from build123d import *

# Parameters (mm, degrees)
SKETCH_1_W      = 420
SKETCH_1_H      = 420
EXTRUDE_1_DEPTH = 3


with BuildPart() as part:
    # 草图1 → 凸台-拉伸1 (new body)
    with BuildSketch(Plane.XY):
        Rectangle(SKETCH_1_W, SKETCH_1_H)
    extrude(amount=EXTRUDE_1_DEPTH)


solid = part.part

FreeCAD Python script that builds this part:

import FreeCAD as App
import Part
import Sketcher
from FreeCAD import Vector
Q = App.Units.Quantity

doc = App.newDocument("Part")
body = doc.addObject("PartDesign::Body", "Body")

sketch1 = doc.addObject("Sketcher::SketchObject", "Sketch")
body.addObject(sketch1)
sketch1.AttachmentSupport = (doc.XY_Plane, [""])
sketch1.MapMode = "FlatFace"
sketch1.addGeometry(Part.LineSegment(Vector(-210, 210, 0), Vector(-210, -210, 0)), False)
sketch1.addGeometry(Part.LineSegment(Vector(-210, -210, 0), Vector(210, -210, 0)), False)
sketch1.addGeometry(Part.LineSegment(Vector(210, -210, 0), Vector(210, 210, 0)), False)
sketch1.addGeometry(Part.LineSegment(Vector(210, 210, 0), Vector(-210, 210, 0)), False)
sketch1.addConstraint(Sketcher.Constraint("Coincident", 0, 2, 1, 1))
sketch1.addConstraint(Sketcher.Constraint("Coincident", 1, 2, 2, 1))
sketch1.addConstraint(Sketcher.Constraint("Coincident", 2, 2, 3, 1))
sketch1.addConstraint(Sketcher.Constraint("Coincident", 3, 2, 0, 1))
sketch1.addConstraint(Sketcher.Constraint("Vertical", 0))
sketch1.addConstraint(Sketcher.Constraint("Horizontal", 1))
sketch1.addConstraint(Sketcher.Constraint("Vertical", 2))
sketch1.addConstraint(Sketcher.Constraint("Horizontal", 3))
sketch1.addConstraint(Sketcher.Constraint("Symmetric", 0, 2, 2, 2, -1, 1))
sketch1.addConstraint(Sketcher.Constraint("Equal", 3, 0))
sketch1.addConstraint(Sketcher.Constraint("DistanceX", 1, 1, 1, 2, Q("420 mm")))
pad1 = doc.addObject("PartDesign::Pad", "Pad")
body.addObject(pad1)
pad1.Profile = sketch1
pad1.Length = 3

doc.recompute()
